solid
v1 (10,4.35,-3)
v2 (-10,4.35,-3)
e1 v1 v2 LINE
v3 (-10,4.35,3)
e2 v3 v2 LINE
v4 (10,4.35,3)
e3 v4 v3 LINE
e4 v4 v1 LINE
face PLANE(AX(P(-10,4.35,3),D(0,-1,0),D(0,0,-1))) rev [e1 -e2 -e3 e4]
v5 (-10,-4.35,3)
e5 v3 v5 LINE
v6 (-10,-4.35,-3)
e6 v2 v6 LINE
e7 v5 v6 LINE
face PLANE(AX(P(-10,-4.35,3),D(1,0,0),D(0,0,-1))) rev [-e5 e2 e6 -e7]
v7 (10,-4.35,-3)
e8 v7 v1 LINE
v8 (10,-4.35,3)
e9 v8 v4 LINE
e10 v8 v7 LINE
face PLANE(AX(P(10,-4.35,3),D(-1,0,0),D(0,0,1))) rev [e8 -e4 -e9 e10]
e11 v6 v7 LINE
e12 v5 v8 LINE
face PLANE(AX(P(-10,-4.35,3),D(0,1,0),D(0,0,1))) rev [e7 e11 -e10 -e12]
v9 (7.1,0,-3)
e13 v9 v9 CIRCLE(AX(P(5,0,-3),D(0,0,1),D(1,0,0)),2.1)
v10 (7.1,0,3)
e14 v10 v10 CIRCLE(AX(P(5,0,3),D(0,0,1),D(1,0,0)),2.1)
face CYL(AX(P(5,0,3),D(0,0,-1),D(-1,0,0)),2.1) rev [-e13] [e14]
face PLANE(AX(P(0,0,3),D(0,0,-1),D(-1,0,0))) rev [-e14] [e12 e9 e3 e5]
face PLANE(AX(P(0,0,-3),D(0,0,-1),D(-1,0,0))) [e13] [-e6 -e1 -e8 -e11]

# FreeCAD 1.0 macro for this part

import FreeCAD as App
import Part
import Sketcher


def add_polygon(sketch, points):
    """Adds a closed chain of lines whose ends are joined by coincident constraints."""
    first, n = sketch.GeometryCount, len(points)
    for a, b in zip(points, points[1:] + points[:1]):
        sketch.addGeometry(Part.LineSegment(App.Vector(*a, 0), App.Vector(*b, 0)), False)
    for i in range(n):
        sketch.addConstraint(Sketcher.Constraint("Coincident", first + i, 2, first + (i + 1) % n, 1))

doc = App.newDocument("Part")
body = doc.addObject("PartDesign::Body", "Body")

# Sketch on XY plane
sketch1 = body.newObject("Sketcher::SketchObject", "Sketch")
sketch1.AttachmentSupport = (doc.getObject("XY_Plane"), [""])
sketch1.MapMode = "FlatFace"
add_polygon(sketch1, [(-10, 4.3), (-10, -4.3), (10, -4.3), (10, 4.3)])  # lines 0-3
sketch1.addGeometry(Part.Circle(App.Vector(5, 0, 0), App.Vector(0, 0, 1), 2.1), False)  # 4
sketch1.addConstraint([
    Sketcher.Constraint("Vertical", 0),
    Sketcher.Constraint("Horizontal", 1),
    Sketcher.Constraint("Vertical", 2),
    Sketcher.Constraint("Horizontal", 3),
    Sketcher.Constraint("Symmetric", 0, 2, 2, 2, -1, 1),
    Sketcher.Constraint("PointOnObject", 4, 3, -1),
    Sketcher.Constraint("Diameter", 4, 4.2),
    Sketcher.Constraint("DistanceX", 1, 1, 1, 2, 20.0),
    Sketcher.Constraint("DistanceY", 0, 2, 0, 1, 8.7),
    Sketcher.Constraint("DistanceX", -1, 1, 4, 3, 5.0),
])
pad1 = body.newObject("PartDesign::Pad", "Pad")
pad1.Profile = sketch1
pad1.Length = 6
pad1.Midplane = True

doc.recompute()
